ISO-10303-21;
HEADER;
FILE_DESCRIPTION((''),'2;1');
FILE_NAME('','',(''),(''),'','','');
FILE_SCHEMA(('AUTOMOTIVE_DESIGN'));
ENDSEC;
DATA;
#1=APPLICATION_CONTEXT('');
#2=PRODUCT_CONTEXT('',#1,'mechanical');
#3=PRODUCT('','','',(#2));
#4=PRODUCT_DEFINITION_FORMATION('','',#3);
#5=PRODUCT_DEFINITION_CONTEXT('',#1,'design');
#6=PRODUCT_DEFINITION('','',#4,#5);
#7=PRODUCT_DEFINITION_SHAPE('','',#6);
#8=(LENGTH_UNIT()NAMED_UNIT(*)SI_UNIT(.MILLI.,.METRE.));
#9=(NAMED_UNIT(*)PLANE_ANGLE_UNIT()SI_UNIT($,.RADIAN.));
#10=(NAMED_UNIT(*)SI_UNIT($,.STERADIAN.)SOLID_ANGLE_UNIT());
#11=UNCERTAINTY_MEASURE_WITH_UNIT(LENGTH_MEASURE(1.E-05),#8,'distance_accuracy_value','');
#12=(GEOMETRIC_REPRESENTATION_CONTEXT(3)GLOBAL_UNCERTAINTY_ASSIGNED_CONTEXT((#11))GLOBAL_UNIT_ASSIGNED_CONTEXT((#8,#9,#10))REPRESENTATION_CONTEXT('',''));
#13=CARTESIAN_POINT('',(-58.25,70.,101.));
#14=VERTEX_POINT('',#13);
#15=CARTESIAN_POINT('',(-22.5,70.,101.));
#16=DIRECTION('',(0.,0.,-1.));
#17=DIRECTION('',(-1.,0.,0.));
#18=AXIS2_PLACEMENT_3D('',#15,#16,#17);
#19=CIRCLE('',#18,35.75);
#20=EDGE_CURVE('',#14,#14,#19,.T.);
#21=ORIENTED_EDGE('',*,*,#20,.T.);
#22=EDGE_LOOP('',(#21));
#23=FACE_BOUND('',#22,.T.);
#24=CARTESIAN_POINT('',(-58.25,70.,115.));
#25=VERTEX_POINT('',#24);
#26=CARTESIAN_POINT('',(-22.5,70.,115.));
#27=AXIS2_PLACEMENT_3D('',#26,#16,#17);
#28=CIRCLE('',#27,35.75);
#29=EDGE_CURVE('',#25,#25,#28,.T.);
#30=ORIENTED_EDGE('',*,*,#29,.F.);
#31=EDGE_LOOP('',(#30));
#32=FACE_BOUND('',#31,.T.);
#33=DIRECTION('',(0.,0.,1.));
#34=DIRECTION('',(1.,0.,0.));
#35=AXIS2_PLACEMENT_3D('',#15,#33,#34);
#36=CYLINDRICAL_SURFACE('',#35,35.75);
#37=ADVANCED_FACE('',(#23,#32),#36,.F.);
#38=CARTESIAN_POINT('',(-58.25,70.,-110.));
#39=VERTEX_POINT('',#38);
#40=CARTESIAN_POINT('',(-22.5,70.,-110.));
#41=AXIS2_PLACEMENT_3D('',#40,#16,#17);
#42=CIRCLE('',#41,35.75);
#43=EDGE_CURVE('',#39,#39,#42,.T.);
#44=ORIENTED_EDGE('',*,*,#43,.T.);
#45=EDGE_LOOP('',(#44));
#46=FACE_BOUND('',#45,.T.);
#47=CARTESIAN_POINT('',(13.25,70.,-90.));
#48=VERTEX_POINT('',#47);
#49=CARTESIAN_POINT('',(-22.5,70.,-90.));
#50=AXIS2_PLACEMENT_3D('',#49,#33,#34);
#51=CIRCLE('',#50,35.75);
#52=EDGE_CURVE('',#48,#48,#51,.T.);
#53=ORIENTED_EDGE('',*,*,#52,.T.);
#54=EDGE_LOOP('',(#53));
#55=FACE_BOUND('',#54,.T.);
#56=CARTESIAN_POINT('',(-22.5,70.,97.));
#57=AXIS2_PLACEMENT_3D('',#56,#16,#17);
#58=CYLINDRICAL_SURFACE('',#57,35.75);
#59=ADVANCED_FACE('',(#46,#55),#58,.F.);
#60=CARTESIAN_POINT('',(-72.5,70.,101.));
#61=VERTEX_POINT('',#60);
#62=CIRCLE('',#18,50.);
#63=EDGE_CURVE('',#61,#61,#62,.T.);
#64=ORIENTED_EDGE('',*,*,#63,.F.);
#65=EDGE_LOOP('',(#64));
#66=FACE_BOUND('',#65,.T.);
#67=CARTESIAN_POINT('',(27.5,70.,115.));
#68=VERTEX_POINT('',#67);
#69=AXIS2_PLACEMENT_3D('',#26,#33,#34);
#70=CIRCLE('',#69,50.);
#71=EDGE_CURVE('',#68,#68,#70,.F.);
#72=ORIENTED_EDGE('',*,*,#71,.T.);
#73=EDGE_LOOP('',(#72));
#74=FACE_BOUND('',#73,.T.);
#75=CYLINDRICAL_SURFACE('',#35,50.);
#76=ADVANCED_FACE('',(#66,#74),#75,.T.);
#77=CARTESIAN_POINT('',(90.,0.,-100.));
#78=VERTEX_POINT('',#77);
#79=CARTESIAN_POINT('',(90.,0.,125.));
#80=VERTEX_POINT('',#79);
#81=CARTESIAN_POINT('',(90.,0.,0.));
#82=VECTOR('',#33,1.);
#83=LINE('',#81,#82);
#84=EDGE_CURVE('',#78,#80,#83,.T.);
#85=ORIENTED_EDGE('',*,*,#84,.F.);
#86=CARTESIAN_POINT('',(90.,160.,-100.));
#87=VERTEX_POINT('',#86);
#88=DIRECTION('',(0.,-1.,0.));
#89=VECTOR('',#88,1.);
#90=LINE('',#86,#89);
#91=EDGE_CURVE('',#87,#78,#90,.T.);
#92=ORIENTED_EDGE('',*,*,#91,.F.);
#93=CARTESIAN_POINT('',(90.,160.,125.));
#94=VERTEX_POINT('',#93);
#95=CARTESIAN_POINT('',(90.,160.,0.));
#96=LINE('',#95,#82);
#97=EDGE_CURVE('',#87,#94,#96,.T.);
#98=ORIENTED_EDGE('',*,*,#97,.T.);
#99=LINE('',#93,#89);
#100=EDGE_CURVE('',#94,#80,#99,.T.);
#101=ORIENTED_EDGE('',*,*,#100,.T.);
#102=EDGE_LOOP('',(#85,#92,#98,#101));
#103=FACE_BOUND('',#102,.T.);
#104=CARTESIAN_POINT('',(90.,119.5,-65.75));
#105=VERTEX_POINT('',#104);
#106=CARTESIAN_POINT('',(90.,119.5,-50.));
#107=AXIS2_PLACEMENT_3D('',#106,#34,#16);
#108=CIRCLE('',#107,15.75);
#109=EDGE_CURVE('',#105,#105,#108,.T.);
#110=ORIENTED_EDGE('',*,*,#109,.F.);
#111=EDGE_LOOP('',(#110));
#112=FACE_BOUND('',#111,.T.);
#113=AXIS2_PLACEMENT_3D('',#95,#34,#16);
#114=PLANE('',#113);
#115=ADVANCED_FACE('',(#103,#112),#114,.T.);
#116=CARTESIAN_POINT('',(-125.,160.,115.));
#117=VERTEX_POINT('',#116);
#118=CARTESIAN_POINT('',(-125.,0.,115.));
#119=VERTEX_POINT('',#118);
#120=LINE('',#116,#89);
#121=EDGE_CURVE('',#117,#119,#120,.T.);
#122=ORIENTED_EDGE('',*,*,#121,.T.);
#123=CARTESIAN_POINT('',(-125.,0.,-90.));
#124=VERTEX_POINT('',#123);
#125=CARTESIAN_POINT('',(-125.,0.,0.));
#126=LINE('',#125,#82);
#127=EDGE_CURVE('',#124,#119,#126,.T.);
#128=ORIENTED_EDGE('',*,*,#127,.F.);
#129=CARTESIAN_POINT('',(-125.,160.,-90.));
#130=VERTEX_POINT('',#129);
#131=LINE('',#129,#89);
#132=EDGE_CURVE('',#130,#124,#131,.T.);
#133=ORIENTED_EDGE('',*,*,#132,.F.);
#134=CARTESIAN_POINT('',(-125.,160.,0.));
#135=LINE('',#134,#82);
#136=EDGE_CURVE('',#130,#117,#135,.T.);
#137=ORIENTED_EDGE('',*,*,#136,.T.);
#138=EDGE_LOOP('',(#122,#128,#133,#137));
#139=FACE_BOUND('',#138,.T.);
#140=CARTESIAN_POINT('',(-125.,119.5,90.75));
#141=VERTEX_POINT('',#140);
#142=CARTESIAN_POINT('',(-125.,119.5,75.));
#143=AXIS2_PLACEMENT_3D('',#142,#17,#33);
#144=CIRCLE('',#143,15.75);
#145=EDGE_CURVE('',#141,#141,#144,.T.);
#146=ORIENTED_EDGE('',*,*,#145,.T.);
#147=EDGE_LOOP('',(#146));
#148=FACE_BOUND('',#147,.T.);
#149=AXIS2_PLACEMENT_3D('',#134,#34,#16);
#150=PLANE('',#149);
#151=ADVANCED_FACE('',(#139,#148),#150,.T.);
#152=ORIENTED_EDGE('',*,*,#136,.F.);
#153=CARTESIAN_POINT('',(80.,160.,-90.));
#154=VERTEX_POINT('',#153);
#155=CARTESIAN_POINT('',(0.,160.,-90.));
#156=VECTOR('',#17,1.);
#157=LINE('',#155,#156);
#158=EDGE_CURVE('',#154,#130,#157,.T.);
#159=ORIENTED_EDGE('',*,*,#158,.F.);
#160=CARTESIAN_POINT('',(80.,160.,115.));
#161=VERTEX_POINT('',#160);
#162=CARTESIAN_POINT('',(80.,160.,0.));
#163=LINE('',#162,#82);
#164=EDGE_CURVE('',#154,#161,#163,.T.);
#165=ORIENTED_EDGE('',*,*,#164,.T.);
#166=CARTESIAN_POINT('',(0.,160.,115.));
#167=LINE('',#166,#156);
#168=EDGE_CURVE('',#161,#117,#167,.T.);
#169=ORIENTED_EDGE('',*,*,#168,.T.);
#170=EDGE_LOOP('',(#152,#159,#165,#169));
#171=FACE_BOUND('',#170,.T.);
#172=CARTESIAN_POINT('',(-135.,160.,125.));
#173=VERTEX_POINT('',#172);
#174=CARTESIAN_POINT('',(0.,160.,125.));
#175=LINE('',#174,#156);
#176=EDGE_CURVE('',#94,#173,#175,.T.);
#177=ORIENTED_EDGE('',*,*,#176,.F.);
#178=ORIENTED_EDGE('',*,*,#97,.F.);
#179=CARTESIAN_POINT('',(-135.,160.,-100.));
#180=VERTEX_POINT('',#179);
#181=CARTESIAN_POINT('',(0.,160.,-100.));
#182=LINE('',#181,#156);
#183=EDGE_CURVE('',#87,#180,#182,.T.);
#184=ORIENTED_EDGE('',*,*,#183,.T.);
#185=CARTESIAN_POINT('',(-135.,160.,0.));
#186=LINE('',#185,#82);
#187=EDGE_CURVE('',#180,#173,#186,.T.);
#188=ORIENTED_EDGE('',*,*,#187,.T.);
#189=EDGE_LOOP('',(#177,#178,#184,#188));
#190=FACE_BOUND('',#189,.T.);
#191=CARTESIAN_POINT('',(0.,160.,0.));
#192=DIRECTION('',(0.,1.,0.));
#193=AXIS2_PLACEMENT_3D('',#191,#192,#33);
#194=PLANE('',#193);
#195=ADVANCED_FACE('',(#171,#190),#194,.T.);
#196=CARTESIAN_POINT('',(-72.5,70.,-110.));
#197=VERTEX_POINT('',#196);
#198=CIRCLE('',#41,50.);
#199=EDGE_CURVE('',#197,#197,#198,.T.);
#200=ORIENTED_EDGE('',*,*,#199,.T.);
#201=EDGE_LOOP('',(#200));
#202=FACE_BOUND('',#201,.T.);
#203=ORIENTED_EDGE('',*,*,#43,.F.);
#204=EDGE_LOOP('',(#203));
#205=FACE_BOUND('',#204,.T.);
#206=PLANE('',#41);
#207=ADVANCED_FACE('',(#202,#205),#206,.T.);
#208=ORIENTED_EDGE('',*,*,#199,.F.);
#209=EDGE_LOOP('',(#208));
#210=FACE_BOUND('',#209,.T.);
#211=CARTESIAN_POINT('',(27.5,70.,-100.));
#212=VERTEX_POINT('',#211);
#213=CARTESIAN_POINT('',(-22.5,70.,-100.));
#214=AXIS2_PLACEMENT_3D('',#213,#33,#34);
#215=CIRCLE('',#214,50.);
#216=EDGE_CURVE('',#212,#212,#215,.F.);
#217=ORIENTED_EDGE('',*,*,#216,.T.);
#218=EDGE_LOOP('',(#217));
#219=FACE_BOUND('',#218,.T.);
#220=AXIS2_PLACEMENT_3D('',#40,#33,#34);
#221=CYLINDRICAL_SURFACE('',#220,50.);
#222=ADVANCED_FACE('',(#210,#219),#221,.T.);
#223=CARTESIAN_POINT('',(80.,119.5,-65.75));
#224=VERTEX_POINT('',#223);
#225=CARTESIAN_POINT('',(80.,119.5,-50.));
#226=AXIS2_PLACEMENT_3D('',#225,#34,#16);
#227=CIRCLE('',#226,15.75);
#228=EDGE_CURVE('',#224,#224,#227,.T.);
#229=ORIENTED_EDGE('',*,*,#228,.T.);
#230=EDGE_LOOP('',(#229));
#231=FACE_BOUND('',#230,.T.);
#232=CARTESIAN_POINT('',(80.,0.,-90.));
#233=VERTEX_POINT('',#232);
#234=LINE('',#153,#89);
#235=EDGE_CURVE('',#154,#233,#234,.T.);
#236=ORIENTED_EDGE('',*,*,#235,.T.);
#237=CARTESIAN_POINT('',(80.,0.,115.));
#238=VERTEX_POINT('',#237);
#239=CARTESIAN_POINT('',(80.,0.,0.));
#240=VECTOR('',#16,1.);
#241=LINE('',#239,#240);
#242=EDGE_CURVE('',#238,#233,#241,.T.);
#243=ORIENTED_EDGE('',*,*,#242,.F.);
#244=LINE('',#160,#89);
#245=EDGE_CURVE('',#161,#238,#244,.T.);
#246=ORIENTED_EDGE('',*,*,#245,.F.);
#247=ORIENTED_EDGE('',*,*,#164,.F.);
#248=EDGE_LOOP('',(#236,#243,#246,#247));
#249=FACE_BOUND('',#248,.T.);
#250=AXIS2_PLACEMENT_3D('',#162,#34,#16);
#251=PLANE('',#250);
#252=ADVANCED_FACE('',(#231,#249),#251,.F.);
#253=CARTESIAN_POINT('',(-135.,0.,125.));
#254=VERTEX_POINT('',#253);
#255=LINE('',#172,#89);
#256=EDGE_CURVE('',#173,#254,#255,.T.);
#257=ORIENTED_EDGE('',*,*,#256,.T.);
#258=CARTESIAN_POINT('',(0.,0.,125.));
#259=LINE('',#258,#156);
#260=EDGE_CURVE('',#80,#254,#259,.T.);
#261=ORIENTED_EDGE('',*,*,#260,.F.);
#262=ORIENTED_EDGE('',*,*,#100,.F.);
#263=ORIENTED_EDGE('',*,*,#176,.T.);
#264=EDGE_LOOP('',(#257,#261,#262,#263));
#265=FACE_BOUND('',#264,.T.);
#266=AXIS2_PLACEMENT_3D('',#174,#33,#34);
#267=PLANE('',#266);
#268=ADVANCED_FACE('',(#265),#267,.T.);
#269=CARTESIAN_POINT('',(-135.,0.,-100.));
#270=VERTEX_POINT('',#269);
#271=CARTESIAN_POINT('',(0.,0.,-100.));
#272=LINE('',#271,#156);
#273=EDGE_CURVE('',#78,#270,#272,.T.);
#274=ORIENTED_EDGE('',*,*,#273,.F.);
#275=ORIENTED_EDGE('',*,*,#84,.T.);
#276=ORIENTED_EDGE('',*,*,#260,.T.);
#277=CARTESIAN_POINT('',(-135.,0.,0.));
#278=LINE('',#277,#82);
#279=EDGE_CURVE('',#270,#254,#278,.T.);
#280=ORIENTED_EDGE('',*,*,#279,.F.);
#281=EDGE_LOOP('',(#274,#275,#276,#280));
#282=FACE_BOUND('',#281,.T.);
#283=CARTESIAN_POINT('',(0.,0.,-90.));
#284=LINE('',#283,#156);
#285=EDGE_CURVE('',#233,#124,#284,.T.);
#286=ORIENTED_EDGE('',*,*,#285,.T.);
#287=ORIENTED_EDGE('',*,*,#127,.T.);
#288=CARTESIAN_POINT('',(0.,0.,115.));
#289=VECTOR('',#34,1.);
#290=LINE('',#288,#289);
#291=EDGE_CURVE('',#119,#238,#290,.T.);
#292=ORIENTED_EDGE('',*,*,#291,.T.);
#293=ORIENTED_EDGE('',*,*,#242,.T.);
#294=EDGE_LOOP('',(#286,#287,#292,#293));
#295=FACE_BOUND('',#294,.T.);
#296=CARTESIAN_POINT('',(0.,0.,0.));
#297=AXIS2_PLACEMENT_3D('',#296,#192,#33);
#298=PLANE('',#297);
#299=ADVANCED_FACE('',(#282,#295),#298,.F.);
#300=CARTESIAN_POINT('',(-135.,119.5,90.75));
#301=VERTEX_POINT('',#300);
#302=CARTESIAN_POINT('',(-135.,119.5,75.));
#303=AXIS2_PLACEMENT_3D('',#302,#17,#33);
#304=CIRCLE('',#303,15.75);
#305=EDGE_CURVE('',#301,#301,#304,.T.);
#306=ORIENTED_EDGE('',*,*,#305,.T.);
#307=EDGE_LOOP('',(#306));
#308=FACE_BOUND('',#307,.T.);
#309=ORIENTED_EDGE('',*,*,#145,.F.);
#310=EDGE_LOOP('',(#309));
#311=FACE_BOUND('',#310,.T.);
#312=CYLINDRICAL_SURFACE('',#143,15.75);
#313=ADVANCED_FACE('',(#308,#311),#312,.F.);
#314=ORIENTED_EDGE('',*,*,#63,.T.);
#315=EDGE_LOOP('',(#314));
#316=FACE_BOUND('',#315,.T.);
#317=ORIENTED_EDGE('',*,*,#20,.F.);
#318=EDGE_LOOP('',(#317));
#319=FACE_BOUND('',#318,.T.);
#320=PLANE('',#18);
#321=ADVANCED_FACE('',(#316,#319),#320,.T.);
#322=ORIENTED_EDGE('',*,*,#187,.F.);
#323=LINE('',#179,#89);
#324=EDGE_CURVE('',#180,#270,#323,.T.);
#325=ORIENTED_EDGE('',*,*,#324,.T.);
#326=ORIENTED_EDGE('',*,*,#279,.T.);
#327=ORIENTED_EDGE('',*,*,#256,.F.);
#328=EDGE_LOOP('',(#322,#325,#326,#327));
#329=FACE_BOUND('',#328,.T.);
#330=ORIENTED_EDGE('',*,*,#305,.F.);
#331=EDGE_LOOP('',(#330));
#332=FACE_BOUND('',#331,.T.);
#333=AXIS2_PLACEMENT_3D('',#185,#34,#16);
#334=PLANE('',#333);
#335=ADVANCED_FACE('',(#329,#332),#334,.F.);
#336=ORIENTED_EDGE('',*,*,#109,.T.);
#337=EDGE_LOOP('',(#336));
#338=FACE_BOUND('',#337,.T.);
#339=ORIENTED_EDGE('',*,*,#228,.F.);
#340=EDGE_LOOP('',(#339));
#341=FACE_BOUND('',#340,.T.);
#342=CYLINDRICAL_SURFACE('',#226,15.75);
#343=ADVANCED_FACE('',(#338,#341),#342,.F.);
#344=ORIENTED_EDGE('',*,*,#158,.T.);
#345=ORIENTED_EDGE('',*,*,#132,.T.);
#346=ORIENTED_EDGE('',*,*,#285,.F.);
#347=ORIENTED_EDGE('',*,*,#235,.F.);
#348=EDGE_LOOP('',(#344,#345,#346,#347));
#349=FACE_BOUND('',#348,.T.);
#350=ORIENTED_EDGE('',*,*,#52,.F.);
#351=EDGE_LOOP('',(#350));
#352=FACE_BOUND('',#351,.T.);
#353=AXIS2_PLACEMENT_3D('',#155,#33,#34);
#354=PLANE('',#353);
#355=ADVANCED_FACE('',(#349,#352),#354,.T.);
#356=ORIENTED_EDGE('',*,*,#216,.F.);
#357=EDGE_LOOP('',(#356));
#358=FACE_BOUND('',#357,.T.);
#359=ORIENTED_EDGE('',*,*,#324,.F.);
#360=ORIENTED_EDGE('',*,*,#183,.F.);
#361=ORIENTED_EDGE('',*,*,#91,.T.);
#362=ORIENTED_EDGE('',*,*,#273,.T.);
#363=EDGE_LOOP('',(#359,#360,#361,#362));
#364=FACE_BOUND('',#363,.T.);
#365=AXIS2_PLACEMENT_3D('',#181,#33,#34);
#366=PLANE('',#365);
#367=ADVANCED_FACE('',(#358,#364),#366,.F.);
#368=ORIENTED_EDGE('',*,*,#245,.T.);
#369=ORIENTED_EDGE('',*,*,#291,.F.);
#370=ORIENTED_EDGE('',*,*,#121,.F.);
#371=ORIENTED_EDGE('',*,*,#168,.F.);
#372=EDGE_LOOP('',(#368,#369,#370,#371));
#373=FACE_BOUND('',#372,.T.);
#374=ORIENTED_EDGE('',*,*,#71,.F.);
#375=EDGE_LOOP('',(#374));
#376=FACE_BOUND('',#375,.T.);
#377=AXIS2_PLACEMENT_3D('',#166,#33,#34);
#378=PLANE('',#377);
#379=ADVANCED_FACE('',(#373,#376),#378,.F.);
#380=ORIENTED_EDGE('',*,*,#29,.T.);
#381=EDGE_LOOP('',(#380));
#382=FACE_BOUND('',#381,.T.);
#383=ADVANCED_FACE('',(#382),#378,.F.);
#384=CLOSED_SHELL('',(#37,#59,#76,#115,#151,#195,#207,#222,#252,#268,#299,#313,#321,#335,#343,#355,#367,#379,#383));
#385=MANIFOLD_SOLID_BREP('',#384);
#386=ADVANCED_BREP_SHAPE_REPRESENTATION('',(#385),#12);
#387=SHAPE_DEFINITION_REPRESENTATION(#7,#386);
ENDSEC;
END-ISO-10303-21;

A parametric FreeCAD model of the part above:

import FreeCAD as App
import Part
import Sketcher
Q = App.Units.Quantity

doc = App.newDocument("Part")
body = doc.addObject("PartDesign::Body", "Body")

# Sketch on XZ plane
sketch1 = body.newObject("Sketcher::SketchObject", "Sketch")
sketch1.AttachmentSupport = (doc.getObject("XZ_Plane"), [""])
sketch1.MapMode = "FlatFace"
sketch1.addGeometry([
    Part.LineSegment(App.Vector(-135, -100, 0), App.Vector(-135, 125, 0)),  # 0
    Part.LineSegment(App.Vector(-135, 125, 0), App.Vector(90, 125, 0)),  # 1
    Part.LineSegment(App.Vector(90, 125, 0), App.Vector(90, -100, 0)),  # 2
    Part.LineSegment(App.Vector(90, -100, 0), App.Vector(-135, -100, 0)),  # 3
    Part.LineSegment(App.Vector(80, 115, 0), App.Vector(-125, 115, 0)),  # 4
    Part.LineSegment(App.Vector(-125, 115, 0), App.Vector(-125, -90, 0)),  # 5
    Part.LineSegment(App.Vector(-125, -90, 0), App.Vector(80, -90, 0)),  # 6
    Part.LineSegment(App.Vector(80, -90, 0), App.Vector(80, 115, 0)),  # 7
], False)
sketch1.addConstraint([
    Sketcher.Constraint("Coincident", 0, 2, 1, 1),
    Sketcher.Constraint("Coincident", 1, 2, 2, 1),
    Sketcher.Constraint("Coincident", 2, 2, 3, 1),
    Sketcher.Constraint("Coincident", 3, 2, 0, 1),
    Sketcher.Constraint("Coincident", 4, 2, 5, 1),
    Sketcher.Constraint("Coincident", 5, 2, 6, 1),
    Sketcher.Constraint("Coincident", 6, 2, 7, 1),
    Sketcher.Constraint("Coincident", 7, 2, 4, 1),
    Sketcher.Constraint("Vertical", 0),
    Sketcher.Constraint("Horizontal", 1),
    Sketcher.Constraint("Vertical", 2),
    Sketcher.Constraint("Horizontal", 3),
    Sketcher.Constraint("Horizontal", 4),
    Sketcher.Constraint("Vertical", 5),
    Sketcher.Constraint("Horizontal", 6),
    Sketcher.Constraint("Vertical", 7),
    Sketcher.Constraint("Equal", 3, 0),
    Sketcher.Constraint("Equal", 6, 5),
    Sketcher.Constraint("DistanceX", 1, 1, 1, 2, Q("225 mm")),
    Sketcher.Constraint("DistanceX", 4, 2, 4, 1, Q("205 mm")),
    Sketcher.Constraint("DistanceX", 0, 2, -1, 1, Q("135 mm")),
    Sketcher.Constraint("DistanceY", -1, 1, 0, 2, Q("125 mm")),
    Sketcher.Constraint("DistanceX", 4, 2, -1, 1, Q("125 mm")),
    Sketcher.Constraint("DistanceY", -1, 1, 4, 2, Q("115 mm")),
])
pad1 = body.newObject("PartDesign::Pad", "Pad")
pad1.Profile = sketch1
pad1.Length = 160
pad1.Reversed = True

# Sketch on XZ plane
sketch2 = body.newObject("Sketcher::SketchObject", "Sketch001")
sketch2.AttachmentSupport = (doc.getObject("XZ_Plane"), [""])
sketch2.MapMode = "FlatFace"
sketch2.addGeometry([
    Part.LineSegment(App.Vector(-125, -90, 0), App.Vector(-125, 115, 0)),
    Part.LineSegment(App.Vector(-125, 115, 0), App.Vector(80, 115, 0)),
    Part.LineSegment(App.Vector(80, 115, 0), App.Vector(80, -90, 0)),
    Part.LineSegment(App.Vector(80, -90, 0), App.Vector(-125, -90, 0)),
], False)
sketch2.addConstraint([
    Sketcher.Constraint("Coincident", 0, 2, 1, 1),
    Sketcher.Constraint("Coincident", 1, 2, 2, 1),
    Sketcher.Constraint("Coincident", 2, 2, 3, 1),
    Sketcher.Constraint("Coincident", 3, 2, 0, 1),
    Sketcher.Constraint("Vertical", 0),
    Sketcher.Constraint("Horizontal", 1),
    Sketcher.Constraint("Vertical", 2),
    Sketcher.Constraint("Horizontal", 3),
    Sketcher.Constraint("Equal", 3, 0),
    Sketcher.Constraint("DistanceX", 1, 1, 1, 2, Q("205 mm")),
    Sketcher.Constraint("DistanceX", 0, 2, -1, 1, Q("125 mm")),
    Sketcher.Constraint("DistanceY", -1, 1, 0, 2, Q("115 mm")),
])
pad2 = body.newObject("PartDesign::Pad", "Pad001")
pad2.Profile = sketch2
pad2.Length = 7
pad2.Reversed = True

# Sketch on XY plane
sketch3 = body.newObject("Sketcher::SketchObject", "Sketch002")
sketch3.AttachmentSupport = (doc.getObject("XY_Plane"), [""])
sketch3.MapMode = "FlatFace"
sketch3.AttachmentOffset = App.Placement(App.Vector(0, 0, -100), App.Rotation())
sketch3.addGeometry(Part.Circle(App.Vector(-22, 70, 0), App.Vector(0, 0, 1), 36), False)
sketch3.addConstraint([
    Sketcher.Constraint("Diameter", 0, Q("71.5 mm")),
    Sketcher.Constraint("DistanceY", -1, 1, 0, 3, Q("70 mm")),
    Sketcher.Constraint("DistanceX", 0, 3, -1, 1, Q("22.5 mm")),
])
pocket1 = body.newObject("PartDesign::Pocket", "Pocket")
pocket1.Profile = sketch3
pocket1.Length = 197
pocket1.Reversed = True

# Sketch on XY plane
sketch4 = body.newObject("Sketcher::SketchObject", "Sketch003")
sketch4.AttachmentSupport = (doc.getObject("XY_Plane"), [""])
sketch4.MapMode = "FlatFace"
sketch4.AttachmentOffset = App.Placement(App.Vector(0, 0, 101), App.Rotation())
sketch4.addGeometry([
    Part.Circle(App.Vector(-22, 70, 0), App.Vector(0, 0, 1), 50),
    Part.Circle(App.Vector(-22, 70, 0), App.Vector(0, 0, 1), 36),
], False)
sketch4.addConstraint([
    Sketcher.Constraint("Coincident", 1, 3, 0, 3),
    Sketcher.Constraint("Diameter", 0, Q("100 mm")),
    Sketcher.Constraint("Diameter", 1, Q("71.5 mm")),
    Sketcher.Constraint("DistanceY", -1, 1, 0, 3, Q("70 mm")),
    Sketcher.Constraint("DistanceX", 0, 3, -1, 1, Q("22.5 mm")),
])
pad3 = body.newObject("PartDesign::Pad", "Pad002")
pad3.Profile = sketch4
pad3.Length = 14

# Sketch on XY plane
sketch5 = body.newObject("Sketcher::SketchObject", "Sketch004")
sketch5.AttachmentSupport = (doc.getObject("XY_Plane"), [""])
sketch5.MapMode = "FlatFace"
sketch5.AttachmentOffset = App.Placement(App.Vector(0, 0, -110), App.Rotation())
sketch5.addGeometry([
    Part.Circle(App.Vector(-22, 70, 0), App.Vector(0, 0, 1), 50),
    Part.Circle(App.Vector(-22, 70, 0), App.Vector(0, 0, 1), 36),
], False)
sketch5.addConstraint([
    Sketcher.Constraint("Coincident", 1, 3, 0, 3),
    Sketcher.Constraint("Diameter", 0, Q("100 mm")),
    Sketcher.Constraint("Diameter", 1, Q("71.5 mm")),
    Sketcher.Constraint("DistanceY", -1, 1, 0, 3, Q("70 mm")),
    Sketcher.Constraint("DistanceX", 0, 3, -1, 1, Q("22.5 mm")),
])
pad4 = body.newObject("PartDesign::Pad", "Pad003")
pad4.Profile = sketch5
pad4.Length = 10

# Sketch on XZ plane
sketch6 = body.newObject("Sketcher::SketchObject", "Sketch005")
sketch6.AttachmentSupport = (doc.getObject("XZ_Plane"), [""])
sketch6.MapMode = "FlatFace"
sketch6.AttachmentOffset = App.Placement(App.Vector(0, 0, -7), App.Rotation())
sketch6.addGeometry([
    Part.LineSegment(App.Vector(-125, -90, 0), App.Vector(-125, 115, 0)),
    Part.LineSegment(App.Vector(-125, 115, 0), App.Vector(80, 115, 0)),
    Part.LineSegment(App.Vector(80, 115, 0), App.Vector(80, -90, 0)),
    Part.LineSegment(App.Vector(80, -90, 0), App.Vector(-125, -90, 0)),
], False)
sketch6.addConstraint([
    Sketcher.Constraint("Coincident", 0, 2, 1, 1),
    Sketcher.Constraint("Coincident", 1, 2, 2, 1),
    Sketcher.Constraint("Coincident", 2, 2, 3, 1),
    Sketcher.Constraint("Coincident", 3, 2, 0, 1),
    Sketcher.Constraint("Vertical", 0),
    Sketcher.Constraint("Horizontal", 1),
    Sketcher.Constraint("Vertical", 2),
    Sketcher.Constraint("Horizontal", 3),
    Sketcher.Constraint("Equal", 3, 0),
    Sketcher.Constraint("DistanceX", 1, 1, 1, 2, Q("205 mm")),
    Sketcher.Constraint("DistanceX", 0, 2, -1, 1, Q("125 mm")),
    Sketcher.Constraint("DistanceY", -1, 1, 0, 2, Q("115 mm")),
])
pocket2 = body.newObject("PartDesign::Pocket", "Pocket001")
pocket2.Profile = sketch6
pocket2.Length = 10
pocket2.Reversed = True

# Sketch on YZ plane
sketch7 = body.newObject("Sketcher::SketchObject", "Sketch006")
sketch7.AttachmentSupport = (doc.getObject("YZ_Plane"), [""])
sketch7.MapMode = "FlatFace"
sketch7.AttachmentOffset = App.Placement(App.Vector(0, 0, -135), App.Rotation())
sketch7.addGeometry(Part.Circle(App.Vector(120, 75, 0), App.Vector(0, 0, 1), 16), False)
sketch7.addConstraint([
    Sketcher.Constraint("Diameter", 0, Q("31.5 mm")),
    Sketcher.Constraint("DistanceY", -1, 1, 0, 3, Q("75 mm")),
    Sketcher.Constraint("DistanceX", -1, 1, 0, 3, Q("119.5 mm")),
])
pocket3 = body.newObject("PartDesign::Pocket", "Pocket002")
pocket3.Profile = sketch7
pocket3.Length = 10
pocket3.Reversed = True

# Sketch on YZ plane
sketch8 = body.newObject("Sketcher::SketchObject", "Sketch007")
sketch8.AttachmentSupport = (doc.getObject("YZ_Plane"), [""])
sketch8.MapMode = "FlatFace"
sketch8.AttachmentOffset = App.Placement(App.Vector(0, 0, 90), App.Rotation())
sketch8.addGeometry(Part.Circle(App.Vector(120, -50, 0), App.Vector(0, 0, 1), 16), False)
sketch8.addConstraint([
    Sketcher.Constraint("Diameter", 0, Q("31.5 mm")),
    Sketcher.Constraint("DistanceY", 0, 3, -1, 1, Q("50 mm")),
    Sketcher.Constraint("DistanceX", -1, 1, 0, 3, Q("119.5 mm")),
])
pocket4 = body.newObject("PartDesign::Pocket", "Pocket003")
pocket4.Profile = sketch8
pocket4.Length = 10

doc.recompute()
